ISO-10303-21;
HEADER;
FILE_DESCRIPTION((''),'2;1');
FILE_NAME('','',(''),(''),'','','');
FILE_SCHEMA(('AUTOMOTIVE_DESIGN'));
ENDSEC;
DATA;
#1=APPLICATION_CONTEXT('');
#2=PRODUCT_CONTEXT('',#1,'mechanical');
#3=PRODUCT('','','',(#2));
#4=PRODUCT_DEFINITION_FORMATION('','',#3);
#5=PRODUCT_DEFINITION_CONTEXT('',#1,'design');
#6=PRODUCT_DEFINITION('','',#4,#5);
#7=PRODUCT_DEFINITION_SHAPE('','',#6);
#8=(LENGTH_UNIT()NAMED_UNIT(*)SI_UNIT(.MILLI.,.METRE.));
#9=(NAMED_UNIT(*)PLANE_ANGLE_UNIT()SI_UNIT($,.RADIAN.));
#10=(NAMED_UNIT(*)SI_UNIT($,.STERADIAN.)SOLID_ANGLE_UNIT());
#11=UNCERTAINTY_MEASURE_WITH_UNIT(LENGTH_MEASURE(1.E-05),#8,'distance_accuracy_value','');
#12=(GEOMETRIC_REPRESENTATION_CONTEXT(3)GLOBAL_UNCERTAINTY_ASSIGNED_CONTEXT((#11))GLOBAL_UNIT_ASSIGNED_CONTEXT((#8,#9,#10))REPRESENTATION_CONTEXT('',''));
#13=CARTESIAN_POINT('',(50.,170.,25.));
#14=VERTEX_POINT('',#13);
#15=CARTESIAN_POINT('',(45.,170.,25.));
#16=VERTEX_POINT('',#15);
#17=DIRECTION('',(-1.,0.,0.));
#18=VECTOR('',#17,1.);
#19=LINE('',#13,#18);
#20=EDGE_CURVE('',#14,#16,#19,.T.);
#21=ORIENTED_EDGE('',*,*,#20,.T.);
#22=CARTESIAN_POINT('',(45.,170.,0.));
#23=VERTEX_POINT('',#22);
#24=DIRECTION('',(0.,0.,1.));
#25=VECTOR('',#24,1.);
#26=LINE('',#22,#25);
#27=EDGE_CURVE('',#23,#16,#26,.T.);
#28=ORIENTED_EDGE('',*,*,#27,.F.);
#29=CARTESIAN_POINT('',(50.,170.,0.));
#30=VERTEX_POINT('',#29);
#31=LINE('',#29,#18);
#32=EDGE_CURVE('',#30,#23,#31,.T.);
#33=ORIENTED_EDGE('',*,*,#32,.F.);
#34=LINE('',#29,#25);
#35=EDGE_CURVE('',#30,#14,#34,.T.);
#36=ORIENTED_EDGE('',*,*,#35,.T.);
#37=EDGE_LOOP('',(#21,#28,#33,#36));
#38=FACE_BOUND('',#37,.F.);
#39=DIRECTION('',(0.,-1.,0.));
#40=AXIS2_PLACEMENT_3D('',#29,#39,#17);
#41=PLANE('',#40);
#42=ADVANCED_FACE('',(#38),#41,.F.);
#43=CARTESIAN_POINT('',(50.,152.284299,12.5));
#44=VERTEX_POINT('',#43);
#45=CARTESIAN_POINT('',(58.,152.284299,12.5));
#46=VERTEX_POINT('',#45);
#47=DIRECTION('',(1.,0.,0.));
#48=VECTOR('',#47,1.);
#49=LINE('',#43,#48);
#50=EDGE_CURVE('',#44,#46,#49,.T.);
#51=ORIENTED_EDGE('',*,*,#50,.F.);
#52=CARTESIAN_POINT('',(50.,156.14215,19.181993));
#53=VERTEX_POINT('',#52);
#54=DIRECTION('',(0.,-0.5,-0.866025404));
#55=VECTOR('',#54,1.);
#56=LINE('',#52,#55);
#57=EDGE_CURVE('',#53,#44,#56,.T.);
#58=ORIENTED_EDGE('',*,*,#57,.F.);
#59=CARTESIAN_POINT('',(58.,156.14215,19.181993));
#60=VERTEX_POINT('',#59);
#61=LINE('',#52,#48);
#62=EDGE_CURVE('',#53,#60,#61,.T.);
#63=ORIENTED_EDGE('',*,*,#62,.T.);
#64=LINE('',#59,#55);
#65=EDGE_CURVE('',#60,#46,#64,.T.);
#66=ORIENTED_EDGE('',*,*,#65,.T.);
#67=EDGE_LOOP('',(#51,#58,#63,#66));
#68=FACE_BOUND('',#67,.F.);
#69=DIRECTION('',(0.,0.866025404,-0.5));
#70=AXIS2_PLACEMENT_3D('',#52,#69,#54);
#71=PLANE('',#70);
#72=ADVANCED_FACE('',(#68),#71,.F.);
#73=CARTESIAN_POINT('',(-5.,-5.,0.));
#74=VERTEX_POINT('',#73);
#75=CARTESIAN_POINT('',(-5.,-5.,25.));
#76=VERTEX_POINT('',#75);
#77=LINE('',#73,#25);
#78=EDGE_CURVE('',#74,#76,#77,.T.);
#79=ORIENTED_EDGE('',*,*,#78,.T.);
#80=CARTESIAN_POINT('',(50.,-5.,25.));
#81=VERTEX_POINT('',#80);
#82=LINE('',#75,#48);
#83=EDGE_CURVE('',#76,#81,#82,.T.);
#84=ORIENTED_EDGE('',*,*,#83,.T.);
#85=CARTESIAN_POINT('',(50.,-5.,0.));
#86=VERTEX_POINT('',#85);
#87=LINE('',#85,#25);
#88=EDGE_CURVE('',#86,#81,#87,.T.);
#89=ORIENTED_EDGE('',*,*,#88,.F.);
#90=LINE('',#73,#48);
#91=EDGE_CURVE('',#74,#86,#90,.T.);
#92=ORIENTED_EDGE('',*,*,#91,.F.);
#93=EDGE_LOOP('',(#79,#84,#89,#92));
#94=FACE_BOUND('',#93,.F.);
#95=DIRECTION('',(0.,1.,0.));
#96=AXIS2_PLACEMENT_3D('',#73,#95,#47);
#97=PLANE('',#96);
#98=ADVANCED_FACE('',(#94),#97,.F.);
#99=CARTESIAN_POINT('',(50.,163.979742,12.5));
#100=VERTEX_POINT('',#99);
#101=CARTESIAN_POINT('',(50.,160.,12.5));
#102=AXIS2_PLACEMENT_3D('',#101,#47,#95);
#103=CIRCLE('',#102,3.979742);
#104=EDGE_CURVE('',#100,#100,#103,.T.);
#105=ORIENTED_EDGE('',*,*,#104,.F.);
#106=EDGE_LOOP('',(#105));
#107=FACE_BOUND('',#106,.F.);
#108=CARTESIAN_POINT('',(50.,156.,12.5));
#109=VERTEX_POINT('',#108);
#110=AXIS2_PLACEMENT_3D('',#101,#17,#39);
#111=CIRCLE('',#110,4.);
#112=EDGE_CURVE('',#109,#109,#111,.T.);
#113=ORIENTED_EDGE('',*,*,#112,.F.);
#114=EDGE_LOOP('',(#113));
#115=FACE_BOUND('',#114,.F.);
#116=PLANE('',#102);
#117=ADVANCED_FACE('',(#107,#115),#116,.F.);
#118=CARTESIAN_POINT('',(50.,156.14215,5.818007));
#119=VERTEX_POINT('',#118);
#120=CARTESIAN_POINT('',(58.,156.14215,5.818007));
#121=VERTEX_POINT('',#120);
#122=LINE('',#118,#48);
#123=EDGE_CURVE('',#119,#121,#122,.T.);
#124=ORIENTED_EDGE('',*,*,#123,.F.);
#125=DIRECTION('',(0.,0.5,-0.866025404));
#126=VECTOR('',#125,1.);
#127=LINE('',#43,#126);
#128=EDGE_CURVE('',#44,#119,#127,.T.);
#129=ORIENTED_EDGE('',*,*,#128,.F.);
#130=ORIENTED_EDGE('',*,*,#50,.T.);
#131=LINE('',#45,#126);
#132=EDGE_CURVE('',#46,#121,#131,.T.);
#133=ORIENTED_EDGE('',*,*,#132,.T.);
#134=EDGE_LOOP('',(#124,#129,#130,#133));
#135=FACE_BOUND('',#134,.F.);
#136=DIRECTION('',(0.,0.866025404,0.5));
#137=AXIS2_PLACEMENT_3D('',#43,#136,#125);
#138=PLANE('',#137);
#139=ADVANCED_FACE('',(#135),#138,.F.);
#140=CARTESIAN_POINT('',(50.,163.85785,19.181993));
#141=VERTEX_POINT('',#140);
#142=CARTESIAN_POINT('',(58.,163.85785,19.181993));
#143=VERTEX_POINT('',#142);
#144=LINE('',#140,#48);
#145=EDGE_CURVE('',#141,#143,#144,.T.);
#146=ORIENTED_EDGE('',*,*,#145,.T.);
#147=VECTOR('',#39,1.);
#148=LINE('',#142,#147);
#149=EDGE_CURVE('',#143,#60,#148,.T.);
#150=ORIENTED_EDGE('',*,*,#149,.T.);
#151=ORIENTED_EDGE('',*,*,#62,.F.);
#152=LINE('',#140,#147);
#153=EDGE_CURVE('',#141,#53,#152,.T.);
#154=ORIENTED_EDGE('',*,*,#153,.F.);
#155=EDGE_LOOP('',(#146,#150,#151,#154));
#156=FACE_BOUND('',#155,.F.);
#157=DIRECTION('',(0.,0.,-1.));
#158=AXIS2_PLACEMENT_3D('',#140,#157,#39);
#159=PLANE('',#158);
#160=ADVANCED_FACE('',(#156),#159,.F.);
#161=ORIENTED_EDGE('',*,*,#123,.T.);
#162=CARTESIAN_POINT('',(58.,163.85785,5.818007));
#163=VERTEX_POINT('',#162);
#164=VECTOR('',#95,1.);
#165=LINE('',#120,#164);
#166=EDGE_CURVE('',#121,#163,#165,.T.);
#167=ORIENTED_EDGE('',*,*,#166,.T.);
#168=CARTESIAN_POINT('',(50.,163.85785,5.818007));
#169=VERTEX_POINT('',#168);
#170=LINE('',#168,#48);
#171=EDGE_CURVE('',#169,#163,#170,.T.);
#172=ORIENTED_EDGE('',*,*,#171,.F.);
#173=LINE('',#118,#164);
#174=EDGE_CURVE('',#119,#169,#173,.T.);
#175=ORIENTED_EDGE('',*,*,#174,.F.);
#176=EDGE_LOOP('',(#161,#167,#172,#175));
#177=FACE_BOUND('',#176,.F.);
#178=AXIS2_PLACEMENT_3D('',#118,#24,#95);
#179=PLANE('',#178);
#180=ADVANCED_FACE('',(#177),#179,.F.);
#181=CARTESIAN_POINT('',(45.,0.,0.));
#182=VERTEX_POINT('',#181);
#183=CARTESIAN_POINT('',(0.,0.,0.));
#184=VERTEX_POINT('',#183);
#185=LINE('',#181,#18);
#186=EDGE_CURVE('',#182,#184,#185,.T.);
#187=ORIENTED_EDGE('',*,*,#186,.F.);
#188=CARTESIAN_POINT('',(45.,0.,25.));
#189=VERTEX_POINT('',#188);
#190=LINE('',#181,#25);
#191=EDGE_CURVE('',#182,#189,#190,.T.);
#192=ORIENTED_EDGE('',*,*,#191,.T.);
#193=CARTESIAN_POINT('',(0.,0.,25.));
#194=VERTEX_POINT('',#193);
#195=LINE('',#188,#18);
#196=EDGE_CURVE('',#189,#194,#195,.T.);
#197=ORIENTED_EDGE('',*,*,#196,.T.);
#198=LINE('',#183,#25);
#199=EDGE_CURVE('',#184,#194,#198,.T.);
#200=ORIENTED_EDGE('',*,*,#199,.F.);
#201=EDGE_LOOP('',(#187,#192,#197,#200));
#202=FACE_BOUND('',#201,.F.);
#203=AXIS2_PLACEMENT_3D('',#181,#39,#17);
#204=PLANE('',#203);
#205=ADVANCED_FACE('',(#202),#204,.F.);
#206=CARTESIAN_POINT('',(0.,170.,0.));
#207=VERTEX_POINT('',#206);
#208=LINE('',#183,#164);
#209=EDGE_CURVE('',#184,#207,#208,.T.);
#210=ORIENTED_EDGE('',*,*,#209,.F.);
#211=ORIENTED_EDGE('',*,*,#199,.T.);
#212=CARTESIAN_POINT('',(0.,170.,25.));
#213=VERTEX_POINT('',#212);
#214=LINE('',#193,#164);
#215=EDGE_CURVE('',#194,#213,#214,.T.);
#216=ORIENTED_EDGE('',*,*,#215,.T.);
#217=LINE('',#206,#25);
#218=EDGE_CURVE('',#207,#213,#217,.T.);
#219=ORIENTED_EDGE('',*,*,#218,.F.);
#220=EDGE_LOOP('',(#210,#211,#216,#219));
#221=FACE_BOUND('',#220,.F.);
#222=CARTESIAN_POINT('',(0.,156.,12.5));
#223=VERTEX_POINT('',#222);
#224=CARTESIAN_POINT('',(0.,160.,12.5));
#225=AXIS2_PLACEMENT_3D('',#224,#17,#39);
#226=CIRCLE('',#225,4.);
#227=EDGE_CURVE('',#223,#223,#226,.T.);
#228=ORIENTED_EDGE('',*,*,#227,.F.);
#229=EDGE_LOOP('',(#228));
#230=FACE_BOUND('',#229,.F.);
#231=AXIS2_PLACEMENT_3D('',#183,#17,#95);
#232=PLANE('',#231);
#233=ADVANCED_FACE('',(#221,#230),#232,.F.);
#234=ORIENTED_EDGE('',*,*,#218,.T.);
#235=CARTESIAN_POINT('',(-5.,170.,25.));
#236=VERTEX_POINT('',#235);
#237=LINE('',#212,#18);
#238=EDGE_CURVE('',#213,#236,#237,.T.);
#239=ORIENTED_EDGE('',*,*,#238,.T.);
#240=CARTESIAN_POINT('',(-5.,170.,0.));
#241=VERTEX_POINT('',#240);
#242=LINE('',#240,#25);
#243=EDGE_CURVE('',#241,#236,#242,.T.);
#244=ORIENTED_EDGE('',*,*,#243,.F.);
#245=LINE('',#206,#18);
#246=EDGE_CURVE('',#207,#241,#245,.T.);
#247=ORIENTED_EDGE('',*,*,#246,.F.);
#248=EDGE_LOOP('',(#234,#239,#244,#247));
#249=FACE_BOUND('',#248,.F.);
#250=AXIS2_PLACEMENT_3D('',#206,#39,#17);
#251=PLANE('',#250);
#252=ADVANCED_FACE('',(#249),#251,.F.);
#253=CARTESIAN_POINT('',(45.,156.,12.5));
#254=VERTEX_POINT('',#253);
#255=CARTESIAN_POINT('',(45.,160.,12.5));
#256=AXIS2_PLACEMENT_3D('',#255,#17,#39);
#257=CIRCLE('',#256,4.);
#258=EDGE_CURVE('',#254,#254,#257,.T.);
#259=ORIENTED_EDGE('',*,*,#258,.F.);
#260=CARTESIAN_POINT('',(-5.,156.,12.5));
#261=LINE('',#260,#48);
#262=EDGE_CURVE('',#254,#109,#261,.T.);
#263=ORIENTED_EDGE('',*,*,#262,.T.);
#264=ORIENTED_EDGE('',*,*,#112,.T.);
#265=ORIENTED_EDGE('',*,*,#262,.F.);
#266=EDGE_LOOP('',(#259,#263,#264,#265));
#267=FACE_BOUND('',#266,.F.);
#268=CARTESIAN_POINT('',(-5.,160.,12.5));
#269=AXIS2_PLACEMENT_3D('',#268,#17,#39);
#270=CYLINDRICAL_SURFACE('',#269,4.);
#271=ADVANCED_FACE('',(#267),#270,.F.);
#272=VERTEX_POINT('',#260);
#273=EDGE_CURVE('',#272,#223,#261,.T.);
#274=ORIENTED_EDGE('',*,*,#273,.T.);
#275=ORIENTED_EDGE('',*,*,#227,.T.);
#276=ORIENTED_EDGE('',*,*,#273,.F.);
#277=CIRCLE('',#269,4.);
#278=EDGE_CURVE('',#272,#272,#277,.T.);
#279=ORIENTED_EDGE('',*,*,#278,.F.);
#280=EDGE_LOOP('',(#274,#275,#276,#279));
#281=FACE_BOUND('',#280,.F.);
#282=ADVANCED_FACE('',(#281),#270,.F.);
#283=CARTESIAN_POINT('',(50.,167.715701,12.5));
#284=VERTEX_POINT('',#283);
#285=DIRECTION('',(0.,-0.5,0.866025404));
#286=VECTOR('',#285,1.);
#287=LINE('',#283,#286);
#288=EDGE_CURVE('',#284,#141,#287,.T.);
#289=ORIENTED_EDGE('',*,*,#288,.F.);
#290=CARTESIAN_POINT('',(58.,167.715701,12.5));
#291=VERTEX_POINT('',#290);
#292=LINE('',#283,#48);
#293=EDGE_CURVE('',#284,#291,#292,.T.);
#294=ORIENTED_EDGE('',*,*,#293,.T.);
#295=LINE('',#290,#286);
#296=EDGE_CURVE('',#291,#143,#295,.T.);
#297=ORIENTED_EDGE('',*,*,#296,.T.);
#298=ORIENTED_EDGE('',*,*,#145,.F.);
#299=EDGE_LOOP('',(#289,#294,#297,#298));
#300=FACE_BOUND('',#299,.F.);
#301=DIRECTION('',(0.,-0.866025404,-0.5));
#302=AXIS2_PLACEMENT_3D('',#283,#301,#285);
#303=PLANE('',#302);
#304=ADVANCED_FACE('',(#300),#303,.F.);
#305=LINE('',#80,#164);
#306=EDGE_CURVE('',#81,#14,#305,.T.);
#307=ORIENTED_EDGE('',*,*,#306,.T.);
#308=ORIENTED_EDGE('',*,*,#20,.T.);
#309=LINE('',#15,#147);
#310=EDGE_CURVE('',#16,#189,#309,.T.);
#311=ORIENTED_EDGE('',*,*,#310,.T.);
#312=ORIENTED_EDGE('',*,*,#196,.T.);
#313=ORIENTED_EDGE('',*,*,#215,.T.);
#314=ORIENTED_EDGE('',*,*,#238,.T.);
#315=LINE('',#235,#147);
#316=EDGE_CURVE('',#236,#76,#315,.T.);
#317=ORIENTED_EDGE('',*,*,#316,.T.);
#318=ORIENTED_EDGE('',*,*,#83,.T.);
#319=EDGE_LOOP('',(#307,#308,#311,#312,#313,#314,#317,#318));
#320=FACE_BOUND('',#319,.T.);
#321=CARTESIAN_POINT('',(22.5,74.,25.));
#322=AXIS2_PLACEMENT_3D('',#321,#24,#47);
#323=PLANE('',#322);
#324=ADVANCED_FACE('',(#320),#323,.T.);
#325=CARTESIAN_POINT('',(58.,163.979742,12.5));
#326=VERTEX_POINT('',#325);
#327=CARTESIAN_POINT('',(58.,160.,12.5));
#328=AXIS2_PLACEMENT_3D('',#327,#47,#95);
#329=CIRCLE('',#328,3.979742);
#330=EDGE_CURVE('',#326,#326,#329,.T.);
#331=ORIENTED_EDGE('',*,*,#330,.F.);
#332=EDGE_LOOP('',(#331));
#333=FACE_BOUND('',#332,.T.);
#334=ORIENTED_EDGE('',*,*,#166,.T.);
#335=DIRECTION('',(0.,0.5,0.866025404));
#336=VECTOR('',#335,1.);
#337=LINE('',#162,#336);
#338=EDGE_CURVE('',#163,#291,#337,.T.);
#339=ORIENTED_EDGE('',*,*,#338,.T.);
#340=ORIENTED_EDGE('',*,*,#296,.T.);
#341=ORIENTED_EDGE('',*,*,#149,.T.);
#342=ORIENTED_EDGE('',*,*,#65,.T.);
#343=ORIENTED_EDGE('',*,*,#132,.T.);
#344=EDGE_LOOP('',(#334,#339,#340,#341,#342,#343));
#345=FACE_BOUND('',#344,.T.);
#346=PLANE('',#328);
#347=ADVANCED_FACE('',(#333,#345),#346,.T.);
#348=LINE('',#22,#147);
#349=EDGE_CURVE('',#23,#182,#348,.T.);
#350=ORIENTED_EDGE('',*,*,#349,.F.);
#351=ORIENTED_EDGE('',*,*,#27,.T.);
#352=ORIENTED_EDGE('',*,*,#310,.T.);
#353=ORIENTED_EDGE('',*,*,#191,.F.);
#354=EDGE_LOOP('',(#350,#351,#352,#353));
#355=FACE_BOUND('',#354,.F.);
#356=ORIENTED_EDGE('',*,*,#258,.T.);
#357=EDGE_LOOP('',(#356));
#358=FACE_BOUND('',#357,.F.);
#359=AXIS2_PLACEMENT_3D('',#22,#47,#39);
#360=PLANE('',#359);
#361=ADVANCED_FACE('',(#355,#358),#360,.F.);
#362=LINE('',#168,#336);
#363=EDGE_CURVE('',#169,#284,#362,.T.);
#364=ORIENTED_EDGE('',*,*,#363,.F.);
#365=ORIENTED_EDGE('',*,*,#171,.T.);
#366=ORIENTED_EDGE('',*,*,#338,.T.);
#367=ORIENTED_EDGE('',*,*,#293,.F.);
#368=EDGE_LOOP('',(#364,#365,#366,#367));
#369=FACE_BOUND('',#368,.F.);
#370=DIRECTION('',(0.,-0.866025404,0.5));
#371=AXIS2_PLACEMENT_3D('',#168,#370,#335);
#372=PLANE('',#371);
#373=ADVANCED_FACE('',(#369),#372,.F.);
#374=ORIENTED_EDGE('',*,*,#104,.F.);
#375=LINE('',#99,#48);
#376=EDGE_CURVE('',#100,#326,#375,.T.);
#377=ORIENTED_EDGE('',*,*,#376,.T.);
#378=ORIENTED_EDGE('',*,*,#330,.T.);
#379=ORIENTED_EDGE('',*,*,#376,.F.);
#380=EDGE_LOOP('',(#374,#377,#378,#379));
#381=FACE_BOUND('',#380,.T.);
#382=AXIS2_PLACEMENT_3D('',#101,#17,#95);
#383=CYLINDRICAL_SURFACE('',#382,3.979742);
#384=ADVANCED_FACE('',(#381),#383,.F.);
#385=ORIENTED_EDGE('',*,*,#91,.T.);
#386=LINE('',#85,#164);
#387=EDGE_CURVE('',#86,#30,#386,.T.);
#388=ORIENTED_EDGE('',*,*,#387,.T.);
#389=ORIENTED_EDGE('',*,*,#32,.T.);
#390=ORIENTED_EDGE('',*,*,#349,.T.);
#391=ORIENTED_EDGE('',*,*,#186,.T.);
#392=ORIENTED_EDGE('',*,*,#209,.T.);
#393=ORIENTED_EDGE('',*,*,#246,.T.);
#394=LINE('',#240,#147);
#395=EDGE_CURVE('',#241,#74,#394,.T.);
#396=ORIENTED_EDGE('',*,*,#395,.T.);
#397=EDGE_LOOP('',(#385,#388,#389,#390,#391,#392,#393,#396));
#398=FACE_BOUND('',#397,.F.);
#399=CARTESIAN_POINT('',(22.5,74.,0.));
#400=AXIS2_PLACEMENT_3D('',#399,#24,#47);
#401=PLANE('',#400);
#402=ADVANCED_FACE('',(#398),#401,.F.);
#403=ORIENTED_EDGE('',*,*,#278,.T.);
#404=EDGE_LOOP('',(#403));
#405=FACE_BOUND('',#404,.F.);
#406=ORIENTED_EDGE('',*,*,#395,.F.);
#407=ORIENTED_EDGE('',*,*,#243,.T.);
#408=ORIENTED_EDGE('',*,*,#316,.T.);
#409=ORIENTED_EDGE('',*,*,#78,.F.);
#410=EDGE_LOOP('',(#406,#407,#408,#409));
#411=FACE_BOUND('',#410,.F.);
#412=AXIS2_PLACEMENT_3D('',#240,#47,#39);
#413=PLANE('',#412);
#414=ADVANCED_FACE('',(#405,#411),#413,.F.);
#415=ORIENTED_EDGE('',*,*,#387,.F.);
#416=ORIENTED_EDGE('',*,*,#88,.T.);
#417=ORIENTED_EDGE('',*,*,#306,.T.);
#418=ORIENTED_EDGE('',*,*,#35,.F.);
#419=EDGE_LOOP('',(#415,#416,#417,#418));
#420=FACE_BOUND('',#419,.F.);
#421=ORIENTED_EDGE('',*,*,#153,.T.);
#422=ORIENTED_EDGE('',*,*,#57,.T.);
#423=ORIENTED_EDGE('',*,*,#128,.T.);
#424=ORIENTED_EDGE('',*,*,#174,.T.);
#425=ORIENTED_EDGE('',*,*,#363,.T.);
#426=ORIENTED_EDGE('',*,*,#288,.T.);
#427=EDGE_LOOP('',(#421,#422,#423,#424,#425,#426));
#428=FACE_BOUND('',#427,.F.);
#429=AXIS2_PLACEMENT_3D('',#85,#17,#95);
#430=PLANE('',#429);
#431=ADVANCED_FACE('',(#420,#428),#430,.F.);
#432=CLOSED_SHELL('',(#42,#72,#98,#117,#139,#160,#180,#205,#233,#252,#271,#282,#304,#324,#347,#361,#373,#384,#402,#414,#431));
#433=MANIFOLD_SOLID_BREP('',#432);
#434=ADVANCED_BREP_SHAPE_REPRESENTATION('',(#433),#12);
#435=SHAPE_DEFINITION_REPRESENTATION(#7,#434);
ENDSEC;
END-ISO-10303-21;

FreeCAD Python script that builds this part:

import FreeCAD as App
import Part
import Sketcher

V = App.Vector
Q = App.Units.Quantity


def add_polygon(sketch, points):
    """Adds a closed chain of lines whose ends are joined by coincident constraints."""
    first, n = sketch.GeometryCount, len(points)
    for a, b in zip(points, points[1:] + points[:1]):
        sketch.addGeometry(Part.LineSegment(App.Vector(*a, 0), App.Vector(*b, 0)), False)
    for i in range(n):
        sketch.addConstraint(Sketcher.Constraint("Coincident", first + i, 2, first + (i + 1) % n, 1))

doc = App.newDocument("Part")
body = doc.addObject("PartDesign::Body", "Body")

# Sketch on XY plane
sketch1 = body.newObject("Sketcher::SketchObject", "Sketch")
sketch1.AttachmentSupport = (doc.getObject("XY_Plane"), [""])
sketch1.MapMode = "FlatFace"
add_polygon(sketch1, [(45, 0), (0, 0), (0, 170), (-5, 170), (-5, -5), (50, -5), (50, 170), (45, 170)])  # lines 0-7
sketch1.addConstraint([
    Sketcher.Constraint("Horizontal", 0),
    Sketcher.Constraint("Vertical", 1),
    Sketcher.Constraint("Horizontal", 2),
    Sketcher.Constraint("Vertical", 3),
    Sketcher.Constraint("Horizontal", 4),
    Sketcher.Constraint("Vertical", 5),
    Sketcher.Constraint("Horizontal", 6),
    Sketcher.Constraint("Vertical", 7),
    Sketcher.Constraint("Coincident", 0, 2, -1, 1),
    Sketcher.Constraint("Horizontal", 2, 2, 5, 2),
    Sketcher.Constraint("Equal", 2, 6),
    Sketcher.Constraint("DistanceX", 0, 2, 0, 1, 45.0),
    Sketcher.Constraint("DistanceX", 2, 2, 2, 1, 5.0),
    Sketcher.Constraint("DistanceY", 1, 1, 1, 2, 170.0),
    Sketcher.Constraint("DistanceY", 3, 2, 3, 1, 175.0),
])
pad1 = body.newObject("PartDesign::Pad", "Pad")
pad1.Profile = sketch1
pad1.Length = 25

# Sketch on YZ plane
sketch2 = body.newObject("Sketcher::SketchObject", "Sketch001")
sketch2.AttachmentSupport = (doc.getObject("YZ_Plane"), [""])
sketch2.MapMode = "FlatFace"
sketch2.AttachmentOffset = App.Placement(V(0, 0, -5), App.Rotation())
sketch2.addGeometry(Part.Circle(V(160, 12.5, 0), V(0, 0, 1), 4), False)
sketch2.addConstraint([
    Sketcher.Constraint("Diameter", 0, 8.0),
    Sketcher.Constraint("DistanceX", -1, 1, 0, 3, 160.0),
    Sketcher.Constraint("DistanceY", -1, 1, 0, 3, 12.5),
])
pocket1 = body.newObject("PartDesign::Pocket", "Pocket")
pocket1.Profile = sketch2
pocket1.Length = 132.5
pocket1.Reversed = True

# Sketch on YZ plane
sketch3 = body.newObject("Sketcher::SketchObject", "Sketch002")
sketch3.AttachmentSupport = (doc.getObject("YZ_Plane"), [""])
sketch3.MapMode = "FlatFace"
sketch3.AttachmentOffset = App.Placement(V(0, 0, 50), App.Rotation())
add_polygon(sketch3, [(163.9, 19.2), (156.1, 19.2), (152.3, 12.5), (156.1, 5.8), (163.9, 5.8), (167.7, 12.5)])  # lines 0-5
sketch3.addGeometry(Part.Circle(V(160, 12.5, 0), V(0, 0, 1), 4), False)  # 6
sketch3.addConstraint([
    Sketcher.Constraint("Horizontal", 0),
    Sketcher.Constraint("Horizontal", 3),
    Sketcher.Constraint("Parallel", 1, 4),
    Sketcher.Constraint("Parallel", 2, 5),
    Sketcher.Constraint("Horizontal", 6, 3, 1, 2),
    Sketcher.Constraint("Horizontal", 1, 2, 4, 2),
    Sketcher.Constraint("Vertical", 0, 2, 2, 2),
    Sketcher.Constraint("Vertical", 3, 2, 5, 2),
    Sketcher.Constraint("Angle", 1, Q("-120 deg")),
    Sketcher.Constraint("DistanceX", -1, 1, 6, 3, 160.0),
    Sketcher.Constraint("DistanceY", -1, 1, 6, 3, 12.5),
    Sketcher.Constraint("Diameter", 6, 7.959484),
    Sketcher.Constraint("DistanceX", 0, 2, 0, 1, 7.715701),
    Sketcher.Constraint("Distance", 1, 7.715701),
    Sketcher.Constraint("DistanceX", -1, 1, 1, 2, 152.284299),
])
pad2 = body.newObject("PartDesign::Pad", "Pad001")
pad2.Profile = sketch3
pad2.Length = 8

doc.recompute()
